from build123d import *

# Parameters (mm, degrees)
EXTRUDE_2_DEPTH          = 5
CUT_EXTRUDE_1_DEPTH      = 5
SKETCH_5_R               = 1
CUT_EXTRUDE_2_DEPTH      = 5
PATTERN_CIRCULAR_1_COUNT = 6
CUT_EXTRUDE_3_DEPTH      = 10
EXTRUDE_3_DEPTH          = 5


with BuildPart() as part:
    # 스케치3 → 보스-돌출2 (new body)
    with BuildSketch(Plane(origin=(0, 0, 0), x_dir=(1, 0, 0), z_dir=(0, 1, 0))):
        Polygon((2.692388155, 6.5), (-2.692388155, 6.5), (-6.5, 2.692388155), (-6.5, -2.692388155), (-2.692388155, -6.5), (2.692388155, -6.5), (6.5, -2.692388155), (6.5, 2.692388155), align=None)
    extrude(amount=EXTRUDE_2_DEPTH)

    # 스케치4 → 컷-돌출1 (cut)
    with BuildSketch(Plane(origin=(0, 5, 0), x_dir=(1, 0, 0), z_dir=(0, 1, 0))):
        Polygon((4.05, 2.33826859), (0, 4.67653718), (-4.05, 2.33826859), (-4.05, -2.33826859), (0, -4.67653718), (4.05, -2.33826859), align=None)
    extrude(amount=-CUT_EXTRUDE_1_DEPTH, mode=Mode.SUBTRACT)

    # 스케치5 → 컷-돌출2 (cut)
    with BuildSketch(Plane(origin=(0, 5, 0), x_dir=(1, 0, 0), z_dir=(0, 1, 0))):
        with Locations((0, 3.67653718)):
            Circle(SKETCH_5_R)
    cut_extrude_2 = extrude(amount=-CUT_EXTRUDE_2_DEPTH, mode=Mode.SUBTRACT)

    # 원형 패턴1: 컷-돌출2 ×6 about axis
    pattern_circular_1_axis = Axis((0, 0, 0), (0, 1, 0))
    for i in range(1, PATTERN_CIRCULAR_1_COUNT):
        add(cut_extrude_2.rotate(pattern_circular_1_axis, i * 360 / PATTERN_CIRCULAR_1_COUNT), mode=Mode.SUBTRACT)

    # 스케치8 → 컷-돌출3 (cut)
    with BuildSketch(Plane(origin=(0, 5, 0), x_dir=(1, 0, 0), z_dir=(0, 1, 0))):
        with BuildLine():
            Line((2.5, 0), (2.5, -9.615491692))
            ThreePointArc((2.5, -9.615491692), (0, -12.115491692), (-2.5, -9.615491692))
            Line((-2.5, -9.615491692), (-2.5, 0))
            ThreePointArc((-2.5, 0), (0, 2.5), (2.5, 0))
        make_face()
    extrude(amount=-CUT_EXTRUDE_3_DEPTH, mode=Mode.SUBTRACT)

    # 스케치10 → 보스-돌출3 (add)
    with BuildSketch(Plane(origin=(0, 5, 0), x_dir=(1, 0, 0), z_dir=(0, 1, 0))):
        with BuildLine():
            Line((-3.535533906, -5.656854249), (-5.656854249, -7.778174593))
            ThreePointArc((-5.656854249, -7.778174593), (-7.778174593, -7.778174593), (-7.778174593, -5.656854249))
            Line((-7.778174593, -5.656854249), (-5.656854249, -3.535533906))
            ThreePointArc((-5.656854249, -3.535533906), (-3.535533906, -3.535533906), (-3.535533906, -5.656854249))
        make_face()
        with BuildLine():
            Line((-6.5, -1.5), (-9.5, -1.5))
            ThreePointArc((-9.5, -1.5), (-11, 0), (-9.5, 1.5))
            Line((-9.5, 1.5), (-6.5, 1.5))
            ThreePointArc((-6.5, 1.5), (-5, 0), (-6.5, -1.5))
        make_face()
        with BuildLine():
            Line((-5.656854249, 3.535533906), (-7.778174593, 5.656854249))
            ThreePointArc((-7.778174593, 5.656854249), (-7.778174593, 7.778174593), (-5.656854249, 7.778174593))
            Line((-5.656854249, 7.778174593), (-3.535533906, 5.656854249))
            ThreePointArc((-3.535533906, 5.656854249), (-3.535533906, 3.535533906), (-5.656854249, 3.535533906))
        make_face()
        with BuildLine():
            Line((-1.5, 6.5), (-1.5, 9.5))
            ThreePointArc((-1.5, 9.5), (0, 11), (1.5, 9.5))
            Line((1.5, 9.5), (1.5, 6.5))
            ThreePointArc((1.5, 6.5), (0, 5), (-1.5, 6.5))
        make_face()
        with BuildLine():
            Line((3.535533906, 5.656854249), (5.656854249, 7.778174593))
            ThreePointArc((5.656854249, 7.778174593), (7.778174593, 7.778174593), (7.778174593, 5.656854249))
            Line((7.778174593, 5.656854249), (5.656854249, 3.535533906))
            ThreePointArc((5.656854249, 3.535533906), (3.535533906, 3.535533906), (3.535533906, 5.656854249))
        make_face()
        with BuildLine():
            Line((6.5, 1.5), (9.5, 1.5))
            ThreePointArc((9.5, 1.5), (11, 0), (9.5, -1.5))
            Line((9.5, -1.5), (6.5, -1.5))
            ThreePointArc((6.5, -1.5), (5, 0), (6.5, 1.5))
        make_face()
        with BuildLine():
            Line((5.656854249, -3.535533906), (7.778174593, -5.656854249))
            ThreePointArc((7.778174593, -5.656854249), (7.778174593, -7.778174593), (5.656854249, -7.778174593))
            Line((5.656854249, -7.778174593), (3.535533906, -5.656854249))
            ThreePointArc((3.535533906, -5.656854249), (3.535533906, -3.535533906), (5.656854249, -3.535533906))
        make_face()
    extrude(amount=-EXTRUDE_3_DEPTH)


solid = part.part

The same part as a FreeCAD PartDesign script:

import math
import FreeCAD as App
import Part
import Sketcher
from FreeCAD import Vector
Q = App.Units.Quantity

doc = App.newDocument("Part")
body = doc.addObject("PartDesign::Body", "Body")

sketch1 = body.newObject("Sketcher::SketchObject", "Sketch")
sketch1.AttachmentSupport = (doc.getObject("XZ_Plane"), [""])
sketch1.MapMode = "FlatFace"
sketch1.addGeometry([
    Part.LineSegment(Vector(3, -6, 0), Vector(-3, -6, 0)),
    Part.LineSegment(Vector(-3, -6, 0), Vector(-6, -3, 0)),
    Part.LineSegment(Vector(-6, -3, 0), Vector(-6, 3, 0)),
    Part.LineSegment(Vector(-6, 3, 0), Vector(-3, 6, 0)),
    Part.LineSegment(Vector(-3, 6, 0), Vector(3, 6, 0)),
    Part.LineSegment(Vector(3, 6, 0), Vector(6, 3, 0)),
    Part.LineSegment(Vector(6, 3, 0), Vector(6, -3, 0)),
    Part.LineSegment(Vector(6, -3, 0), Vector(3, -6, 0)),
], False)
sketch1.addConstraint([
    Sketcher.Constraint("Coincident", 0, 2, 1, 1),
    Sketcher.Constraint("Coincident", 1, 2, 2, 1),
    Sketcher.Constraint("Coincident", 2, 2, 3, 1),
    Sketcher.Constraint("Coincident", 3, 2, 4, 1),
    Sketcher.Constraint("Coincident", 4, 2, 5, 1),
    Sketcher.Constraint("Coincident", 5, 2, 6, 1),
    Sketcher.Constraint("Coincident", 6, 2, 7, 1),
    Sketcher.Constraint("Coincident", 7, 2, 0, 1),
    Sketcher.Constraint("Horizontal", 0),
    Sketcher.Constraint("Vertical", 2),
    Sketcher.Constraint("Horizontal", 4),
    Sketcher.Constraint("Vertical", 6),
    Sketcher.Constraint("Symmetric", 0, 2, 4, 2, -1, 1),
    Sketcher.Constraint("Symmetric", 1, 2, 5, 2, -1, 1),
    Sketcher.Constraint("Perpendicular", 1, 3),
    Sketcher.Constraint("Perpendicular", 5, 7),
    Sketcher.Constraint("Horizontal", 2, 2, 5, 2),
    Sketcher.Constraint("Horizontal", 1, 2, 6, 2),
    Sketcher.Constraint("Vertical", 0, 2, 3, 2),
    Sketcher.Constraint("Equal", 4, 2),
    Sketcher.Constraint("DistanceY", 0, 2, 3, 2, 13.0),
    Sketcher.Constraint("DistanceX", 0, 2, 0, 1, 5.384776),
])
pad1 = body.newObject("PartDesign::Pad", "Pad")
pad1.Profile = sketch1
pad1.Length = 5
pad1.Reversed = True

sketch2 = body.newObject("Sketcher::SketchObject", "Sketch001")
sketch2.AttachmentSupport = (doc.getObject("XZ_Plane"), [""])
sketch2.MapMode = "FlatFace"
sketch2.AttachmentOffset = App.Placement(Vector(0, 0, -5), App.Rotation())
sketch2.addGeometry([
    Part.LineSegment(Vector(4, -2.3, 0), Vector(0, -4.7, 0)),
    Part.LineSegment(Vector(0, -4.7, 0), Vector(-4, -2.3, 0)),
    Part.LineSegment(Vector(-4, -2.3, 0), Vector(-4, 2.3, 0)),
    Part.LineSegment(Vector(-4, 2.3, 0), Vector(0, 4.7, 0)),
    Part.LineSegment(Vector(0, 4.7, 0), Vector(4, 2.3, 0)),
    Part.LineSegment(Vector(4, 2.3, 0), Vector(4, -2.3, 0)),
], False)
sketch2.addConstraint([
    Sketcher.Constraint("Coincident", 0, 2, 1, 1),
    Sketcher.Constraint("Coincident", 1, 2, 2, 1),
    Sketcher.Constraint("Coincident", 2, 2, 3, 1),
    Sketcher.Constraint("Coincident", 3, 2, 4, 1),
    Sketcher.Constraint("Coincident", 4, 2, 5, 1),
    Sketcher.Constraint("Coincident", 5, 2, 0, 1),
    Sketcher.Constraint("Vertical", 2),
    Sketcher.Constraint("Vertical", 5),
    Sketcher.Constraint("Symmetric", 0, 2, 3, 2, -1, 1),
    Sketcher.Constraint("Symmetric", 1, 2, 4, 2, -1, 1),
    Sketcher.Constraint("PointOnObject", 0, 2, -2),
    Sketcher.Constraint("Parallel", 0, 3),
    Sketcher.Constraint("Horizontal", 2, 2, 4, 2),
    Sketcher.Constraint("Angle", 0, Q("-150 deg")),
    Sketcher.Constraint("DistanceX", 2, 2, 4, 2, 8.1),
    Sketcher.Constraint("DistanceY", 2, 1, 2, 2, 4.676537),
])
pocket1 = body.newObject("PartDesign::Pocket", "Pocket")
pocket1.Profile = sketch2
pocket1.Length = 5
pocket1.Reversed = True

sketch3 = body.newObject("Sketcher::SketchObject", "Sketch002")
sketch3.AttachmentSupport = (doc.getObject("XZ_Plane"), [""])
sketch3.MapMode = "FlatFace"
sketch3.AttachmentOffset = App.Placement(Vector(0, 0, -5), App.Rotation())
sketch3.addGeometry(Part.Circle(Vector(0, -3.7, 0), Vector(0, 0, 1), 1), False)
sketch3.addConstraint([
    Sketcher.Constraint("PointOnObject", 0, 3, -2),
    Sketcher.Constraint("Diameter", 0, 2.0),
    Sketcher.Constraint("DistanceY", 0, 3, -1, 1, 3.676537),
])
pocket2 = body.newObject("PartDesign::Pocket", "Pocket001")
pocket2.Profile = sketch3
pocket2.Length = 5
pocket2.Reversed = True
doc.recompute()

polarpattern = body.newObject("PartDesign::PolarPattern", "PolarPattern")
polarpattern.Originals = [pocket2]
polarpattern.Axis = (doc.getObject("Y_Axis"), [""])
polarpattern.Angle = 360
polarpattern.Occurrences = 6
body.Tip = polarpattern

sketch4 = body.newObject("Sketcher::SketchObject", "Sketch003")
sketch4.AttachmentSupport = (doc.getObject("XZ_Plane"), [""])
sketch4.MapMode = "FlatFace"
sketch4.AttachmentOffset = App.Placement(Vector(0, 0, -5), App.Rotation())
sketch4.addGeometry([
    Part.LineSegment(Vector(2.5, 9.6, 0), Vector(2.5, 0, 0)),
    Part.ArcOfCircle(Part.Circle(Vector(0, 0, 0), Vector(0, 0, 1), 2.5), math.radians(180), math.radians(360)),
    Part.LineSegment(Vector(-2.5, 0, 0), Vector(-2.5, 9.6, 0)),
    Part.ArcOfCircle(Part.Circle(Vector(0, 9.6, 0), Vector(0, 0, 1), 2.5), math.radians(0), math.radians(180)),
], False)
sketch4.addConstraint([
    Sketcher.Constraint("Tangent", 0, 2, 1, 2),
    Sketcher.Constraint("Tangent", 1, 1, 2, 1),
    Sketcher.Constraint("Tangent", 2, 2, 3, 2),
    Sketcher.Constraint("Tangent", 3, 1, 0, 1),
    Sketcher.Constraint("Vertical", 0),
    Sketcher.Constraint("Vertical", 2),
    Sketcher.Constraint("Coincident", 1, 3, -1, 1),
    Sketcher.Constraint("Radius", 1, 2.5),
    Sketcher.Constraint("DistanceY", 0, 2, 0, 1, 9.615492),
])
pocket3 = body.newObject("PartDesign::Pocket", "Pocket002")
pocket3.Profile = sketch4
pocket3.Length = 10
pocket3.Reversed = True

sketch5 = body.newObject("Sketcher::SketchObject", "Sketch004")
sketch5.AttachmentSupport = (doc.getObject("XZ_Plane"), [""])
sketch5.MapMode = "FlatFace"
sketch5.AttachmentOffset = App.Placement(Vector(0, 0, -5), App.Rotation())
sketch5.addGeometry([
    Part.LineSegment(Vector(-5.7, 7.8, 0), Vector(-3.5, 5.7, 0)),
    Part.ArcOfCircle(Part.Circle(Vector(-4.6, 4.6, 0), Vector(0, 0, 1), 1.5), math.radians(-135), math.radians(45)),
    Part.LineSegment(Vector(-5.7, 3.5, 0), Vector(-7.8, 5.7, 0)),
    Part.ArcOfCircle(Part.Circle(Vector(-6.7, 6.7, 0), Vector(0, 0, 1), 1.5), math.radians(45), math.radians(225)),
    Part.LineSegment(Vector(-9.5, 1.5, 0), Vector(-6.5, 1.5, 0)),
    Part.ArcOfCircle(Part.Circle(Vector(-6.5, 0, 0), Vector(0, 0, 1), 1.5), math.radians(-90), math.radians(90)),
    Part.LineSegment(Vector(-6.5, -1.5, 0), Vector(-9.5, -1.5, 0)),
    Part.ArcOfCircle(Part.Circle(Vector(-9.5, 0, 0), Vector(0, 0, 1), 1.5), math.radians(90), math.radians(270)),
    Part.LineSegment(Vector(-7.8, -5.7, 0), Vector(-5.7, -3.5, 0)),
    Part.ArcOfCircle(Part.Circle(Vector(-4.6, -4.6, 0), Vector(0, 0, 1), 1.5), math.radians(-45), math.radians(135)),
    Part.LineSegment(Vector(-3.5, -5.7, 0), Vector(-5.7, -7.8, 0)),
    Part.ArcOfCircle(Part.Circle(Vector(-6.7, -6.7, 0), Vector(0, 0, 1), 1.5), math.radians(135), math.radians(315)),
    Part.LineSegment(Vector(-1.5, -9.5, 0), Vector(-1.5, -6.5, 0)),
    Part.ArcOfCircle(Part.Circle(Vector(0, -6.5, 0), Vector(0, 0, 1), 1.5), math.radians(0), math.radians(180)),
    Part.LineSegment(Vector(1.5, -6.5, 0), Vector(1.5, -9.5, 0)),
    Part.ArcOfCircle(Part.Circle(Vector(0, -9.5, 0), Vector(0, 0, 1), 1.5), math.radians(180), math.radians(360)),
    Part.LineSegment(Vector(5.7, -7.8, 0), Vector(3.5, -5.7, 0)),
    Part.ArcOfCircle(Part.Circle(Vector(4.6, -4.6, 0), Vector(0, 0, 1), 1.5), math.radians(45), math.radians(225)),
    Part.LineSegment(Vector(5.7, -3.5, 0), Vector(7.8, -5.7, 0)),
    Part.ArcOfCircle(Part.Circle(Vector(6.7, -6.7, 0), Vector(0, 0, 1), 1.5), math.radians(-135), math.radians(45)),
    Part.LineSegment(Vector(9.5, -1.5, 0), Vector(6.5, -1.5, 0)),
    Part.ArcOfCircle(Part.Circle(Vector(6.5, 0, 0), Vector(0, 0, 1), 1.5), math.radians(90), math.radians(270)),
    Part.LineSegment(Vector(6.5, 1.5, 0), Vector(9.5, 1.5, 0)),
    Part.ArcOfCircle(Part.Circle(Vector(9.5, 0, 0), Vector(0, 0, 1), 1.5), math.radians(-90), math.radians(90)),
    Part.LineSegment(Vector(7.8, 5.7, 0), Vector(5.7, 3.5, 0)),
    Part.ArcOfCircle(Part.Circle(Vector(4.6, 4.6, 0), Vector(0, 0, 1), 1.5), math.radians(135), math.radians(315)),
    Part.LineSegment(Vector(3.5, 5.7, 0), Vector(5.7, 7.8, 0)),
    Part.ArcOfCircle(Part.Circle(Vector(6.7, 6.7, 0), Vector(0, 0, 1), 1.5), math.radians(-45), math.radians(135)),
], False)
sketch5.addConstraint([
    Sketcher.Constraint("Tangent", 0, 2, 1, 2),
    Sketcher.Constraint("Tangent", 1, 1, 2, 1),
    Sketcher.Constraint("Tangent", 2, 2, 3, 2),
    Sketcher.Constraint("Tangent", 3, 1, 0, 1),
    Sketcher.Constraint("Tangent", 4, 2, 5, 2),
    Sketcher.Constraint("Tangent", 5, 1, 6, 1),
    Sketcher.Constraint("Tangent", 6, 2, 7, 2),
    Sketcher.Constraint("Tangent", 7, 1, 4, 1),
    Sketcher.Constraint("Tangent", 8, 2, 9, 2),
    Sketcher.Constraint("Tangent", 9, 1, 10, 1),
    Sketcher.Constraint("Tangent", 10, 2, 11, 2),
    Sketcher.Constraint("Tangent", 11, 1, 8, 1),
    Sketcher.Constraint("Tangent", 12, 2, 13, 2),
    Sketcher.Constraint("Tangent", 13, 1, 14, 1),
    Sketcher.Constraint("Tangent", 14, 2, 15, 2),
    Sketcher.Constraint("Tangent", 15, 1, 12, 1),
    Sketcher.Constraint("Tangent", 16, 2, 17, 2),
    Sketcher.Constraint("Tangent", 17, 1, 18, 1),
    Sketcher.Constraint("Tangent", 18, 2, 19, 2),
    Sketcher.Constraint("Tangent", 19, 1, 16, 1),
    Sketcher.Constraint("Tangent", 20, 2, 21, 2),
    Sketcher.Constraint("Tangent", 21, 1, 22, 1),
    Sketcher.Constraint("Tangent", 22, 2, 23, 2),
    Sketcher.Constraint("Tangent", 23, 1, 20, 1),
    Sketcher.Constraint("Tangent", 24, 2, 25, 2),
    Sketcher.Constraint("Tangent", 25, 1, 26, 1),
    Sketcher.Constraint("Tangent", 26, 2, 27, 2),
    Sketcher.Constraint("Tangent", 27, 1, 24, 1),
    Sketcher.Constraint("Horizontal", 4),
    Sketcher.Constraint("Horizontal", 6),
    Sketcher.Constraint("Vertical", 12),
    Sketcher.Constraint("Vertical", 14),
    Sketcher.Constraint("Horizontal", 20),
    Sketcher.Constraint("Horizontal", 22),
    Sketcher.Constraint("Equal", 1, 3),
    Sketcher.Constraint("Equal", 3, 5),
    Sketcher.Constraint("Equal", 7, 9),
    Sketcher.Constraint("Equal", 9, 11),
    Sketcher.Constraint("Equal", 11, 13),
    Sketcher.Constraint("Equal", 15, 17),
    Sketcher.Constraint("Equal", 17, 19),
    Sketcher.Constraint("Equal", 19, 21),
    Sketcher.Constraint("Equal", 23, 25),
    Sketcher.Constraint("Equal", 25, 27),
    Sketcher.Constraint("Symmetric", 1, 3, 17, 3, -1, 1),
    Sketcher.Constraint("Symmetric", 3, 3, 19, 3, -1, 1),
    Sketcher.Constraint("Symmetric", 5, 3, 21, 3, -1, 1),
    Sketcher.Constraint("Symmetric", 9, 3, 25, 3, -1, 1),
    Sketcher.Constraint("Symmetric", 11, 3, 27, 3, -1, 1),
    Sketcher.Constraint("Symmetric", 9, 3, 17, 3, -2),
    Sketcher.Constraint("Symmetric", 11, 3, 19, 3, -2),
    Sketcher.Constraint("Symmetric", 7, 3, 23, 3, -2),
    Sketcher.Constraint("PointOnObject", 13, 3, -2),
    Sketcher.Constraint("Perpendicular", 2, 8),
    Sketcher.Constraint("Horizontal", 0, 2, 2, 2),
    Sketcher.Constraint("Equal", 22, 12),
    Sketcher.Constraint("Radius", 1, 1.5),
    Sketcher.Constraint("DistanceX", 4, 1, 4, 2, 3.0),
    Sketcher.Constraint("DistanceX", 5, 3, -1, 1, 6.5),
    Sketcher.Constraint("DistanceY", 13, 3, -1, 1, 6.5),
    Sketcher.Constraint("DistanceY", 9, 3, 1, 3, 9.192388),
    Sketcher.Constraint("DistanceX", 9, 3, 17, 3, 9.192388),
])
pad2 = body.newObject("PartDesign::Pad", "Pad001")
pad2.Profile = sketch5
pad2.Length = 5

doc.recompute()
